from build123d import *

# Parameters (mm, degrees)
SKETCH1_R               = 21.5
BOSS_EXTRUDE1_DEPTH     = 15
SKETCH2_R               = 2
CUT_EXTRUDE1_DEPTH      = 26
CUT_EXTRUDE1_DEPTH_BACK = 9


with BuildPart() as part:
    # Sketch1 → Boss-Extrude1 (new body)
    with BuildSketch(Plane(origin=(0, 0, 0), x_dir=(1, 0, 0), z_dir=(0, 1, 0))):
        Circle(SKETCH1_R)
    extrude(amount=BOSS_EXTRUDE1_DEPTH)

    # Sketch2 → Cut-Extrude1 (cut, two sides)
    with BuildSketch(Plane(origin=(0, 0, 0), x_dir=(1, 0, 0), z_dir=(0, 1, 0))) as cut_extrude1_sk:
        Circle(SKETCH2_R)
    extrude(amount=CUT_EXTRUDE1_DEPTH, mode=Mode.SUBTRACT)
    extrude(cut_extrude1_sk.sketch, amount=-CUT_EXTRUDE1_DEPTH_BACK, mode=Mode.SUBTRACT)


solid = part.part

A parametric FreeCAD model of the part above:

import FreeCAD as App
import Part
import Sketcher

doc = App.newDocument("Part")
body = doc.addObject("PartDesign::Body", "Body")

sketch1 = doc.addObject("Sketcher::SketchObject", "Sketch")
body.addObject(sketch1)
sketch1.AttachmentSupport = (doc.XZ_Plane, [""])
sketch1.MapMode = "FlatFace"
sketch1.addGeometry(Part.Circle(App.Vector(0, 0, 0), App.Vector(0, 0, 1), 22), False)
sketch1.addConstraint([
    Sketcher.Constraint("Coincident", 0, 3, -1, 1),
    Sketcher.Constraint("Diameter", 0, 43.0),
])
pad1 = doc.addObject("PartDesign::Pad", "Pad")
body.addObject(pad1)
pad1.Profile = sketch1
pad1.Length = 15
pad1.Reversed = True

sketch2 = doc.addObject("Sketcher::SketchObject", "Sketch001")
body.addObject(sketch2)
sketch2.AttachmentSupport = (doc.XZ_Plane, [""])
sketch2.MapMode = "FlatFace"
sketch2.addGeometry(Part.Circle(App.Vector(0, 0, 0), App.Vector(0, 0, 1), 2), False)
sketch2.addConstraint([
    Sketcher.Constraint("Coincident", 0, 3, -1, 1),
    Sketcher.Constraint("Diameter", 0, 4.0),
])
pocket1 = doc.addObject("PartDesign::Pocket", "Pocket")
body.addObject(pocket1)
pocket1.Profile = sketch2
pocket1.Type = "ThroughAll"
pocket1.Midplane = True

doc.recompute()
